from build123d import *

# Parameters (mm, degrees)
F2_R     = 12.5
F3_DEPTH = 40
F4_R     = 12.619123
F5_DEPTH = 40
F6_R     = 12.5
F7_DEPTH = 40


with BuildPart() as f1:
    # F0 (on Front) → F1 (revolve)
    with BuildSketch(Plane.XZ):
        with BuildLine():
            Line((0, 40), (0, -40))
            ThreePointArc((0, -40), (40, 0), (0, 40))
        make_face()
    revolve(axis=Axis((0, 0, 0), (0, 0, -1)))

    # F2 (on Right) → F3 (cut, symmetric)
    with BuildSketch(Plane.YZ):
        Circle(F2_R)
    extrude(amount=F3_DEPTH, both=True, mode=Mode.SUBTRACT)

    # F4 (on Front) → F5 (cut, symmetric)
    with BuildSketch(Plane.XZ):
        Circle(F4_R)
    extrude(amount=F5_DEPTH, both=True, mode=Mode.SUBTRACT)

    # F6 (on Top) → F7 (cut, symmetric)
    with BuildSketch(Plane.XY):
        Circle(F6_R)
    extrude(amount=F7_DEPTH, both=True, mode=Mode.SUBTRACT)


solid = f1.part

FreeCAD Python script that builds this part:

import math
import FreeCAD as App
import Part
import Sketcher

V = App.Vector

doc = App.newDocument("Part")
body = doc.addObject("PartDesign::Body", "Body")

# Sketch on XZ plane
sketch1 = doc.addObject("Sketcher::SketchObject", "Sketch")
body.addObject(sketch1)
sketch1.AttachmentSupport = (doc.XZ_Plane, [""])
sketch1.MapMode = "FlatFace"
sketch1.addGeometry(Part.LineSegment(V(0, 40, 0), V(0, -40, 0)), False)
sketch1.addGeometry(Part.ArcOfCircle(Part.Circle(V(0, 0, 0), V(0, 0, 1), 40), math.radians(-90), math.radians(90)), False)
sketch1.addConstraint(Sketcher.Constraint("Coincident", 0, 1, 1, 2))
sketch1.addConstraint(Sketcher.Constraint("Coincident", 1, 1, 0, 2))
sketch1.addConstraint(Sketcher.Constraint("Vertical", 0))
sketch1.addConstraint(Sketcher.Constraint("Coincident", 1, 3, -1, 1))
sketch1.addConstraint(Sketcher.Constraint("PointOnObject", 0, 1, -2))
sketch1.addConstraint(Sketcher.Constraint("Radius", 1, 40.0))
revolution = doc.addObject("PartDesign::Revolution", "Revolution")
body.addObject(revolution)
revolution.Profile = sketch1
revolution.ReferenceAxis = (sketch1, ["V_Axis"])
revolution.Angle = 360

# Sketch on YZ plane
sketch2 = doc.addObject("Sketcher::SketchObject", "Sketch001")
body.addObject(sketch2)
sketch2.AttachmentSupport = (doc.YZ_Plane, [""])
sketch2.MapMode = "FlatFace"
sketch2.addGeometry(Part.Circle(V(0, 0, 0), V(0, 0, 1), 12), False)
sketch2.addConstraint(Sketcher.Constraint("Coincident", 0, 3, -1, 1))
sketch2.addConstraint(Sketcher.Constraint("Diameter", 0, 25.0))
pocket1 = doc.addObject("PartDesign::Pocket", "Pocket")
body.addObject(pocket1)
pocket1.Profile = sketch2
pocket1.Length = 80
pocket1.Midplane = True

# Sketch on XZ plane
sketch3 = doc.addObject("Sketcher::SketchObject", "Sketch002")
body.addObject(sketch3)
sketch3.AttachmentSupport = (doc.XZ_Plane, [""])
sketch3.MapMode = "FlatFace"
sketch3.addGeometry(Part.Circle(V(0, 0, 0), V(0, 0, 1), 13), False)
sketch3.addConstraint(Sketcher.Constraint("Coincident", 0, 3, -1, 1))
sketch3.addConstraint(Sketcher.Constraint("Diameter", 0, 25.238246))
pocket2 = doc.addObject("PartDesign::Pocket", "Pocket001")
body.addObject(pocket2)
pocket2.Profile = sketch3
pocket2.Length = 80
pocket2.Midplane = True

# Sketch on XY plane
sketch4 = doc.addObject("Sketcher::SketchObject", "Sketch003")
body.addObject(sketch4)
sketch4.AttachmentSupport = (doc.XY_Plane, [""])
sketch4.MapMode = "FlatFace"
sketch4.addGeometry(Part.Circle(V(0, 0, 0), V(0, 0, 1), 12), False)
sketch4.addConstraint(Sketcher.Constraint("Coincident", 0, 3, -1, 1))
sketch4.addConstraint(Sketcher.Constraint("Diameter", 0, 25.0))
pocket3 = doc.addObject("PartDesign::Pocket", "Pocket002")
body.addObject(pocket3)
pocket3.Profile = sketch4
pocket3.Length = 80
pocket3.Midplane = True

doc.recompute()
